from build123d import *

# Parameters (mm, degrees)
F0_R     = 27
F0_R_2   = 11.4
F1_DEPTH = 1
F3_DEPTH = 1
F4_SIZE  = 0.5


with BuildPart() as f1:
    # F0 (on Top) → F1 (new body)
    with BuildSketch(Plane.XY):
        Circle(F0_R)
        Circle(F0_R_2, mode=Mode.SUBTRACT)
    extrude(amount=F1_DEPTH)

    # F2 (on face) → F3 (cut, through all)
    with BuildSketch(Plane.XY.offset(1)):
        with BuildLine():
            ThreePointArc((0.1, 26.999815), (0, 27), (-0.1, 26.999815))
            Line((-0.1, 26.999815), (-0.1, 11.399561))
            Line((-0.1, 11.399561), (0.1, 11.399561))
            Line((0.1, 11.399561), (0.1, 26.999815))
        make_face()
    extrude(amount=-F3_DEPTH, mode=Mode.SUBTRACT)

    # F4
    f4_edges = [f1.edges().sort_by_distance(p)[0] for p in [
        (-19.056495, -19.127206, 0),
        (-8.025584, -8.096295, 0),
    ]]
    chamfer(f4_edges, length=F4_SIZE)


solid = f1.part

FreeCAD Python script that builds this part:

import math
import FreeCAD as App
import Part
import Sketcher

V = App.Vector
Q = App.Units.Quantity


def edges_at(feature, points):
    """Names of the edges that pass closest to the given points."""
    edges = feature.Shape.Edges
    near = lambda p: min(range(len(edges)), key=lambda i: edges[i].distToShape(Part.Vertex(*p))[0])
    return sorted({f"Edge{near(p) + 1}" for p in points})

doc = App.newDocument("Part")
body = doc.addObject("PartDesign::Body", "Body")

# Sketch on XY plane
sketch1 = body.newObject("Sketcher::SketchObject", "Sketch")
sketch1.AttachmentSupport = (doc.getObject("XY_Plane"), [""])
sketch1.MapMode = "FlatFace"
sketch1.addGeometry([
    Part.Circle(V(0, 0, 0), V(0, 0, 1), 27),
    Part.Circle(V(0, 0, 0), V(0, 0, 1), 11),
], False)
sketch1.addConstraint([
    Sketcher.Constraint("Coincident", 0, 3, -1, 1),
    Sketcher.Constraint("Coincident", 1, 3, -1, 1),
    Sketcher.Constraint("Diameter", 0, Q("54 mm")),
    Sketcher.Constraint("Diameter", 1, Q("22.8 mm")),
])
pad1 = body.newObject("PartDesign::Pad", "Pad")
pad1.Profile = sketch1
pad1.Length = 1

# Sketch on XY plane
sketch2 = body.newObject("Sketcher::SketchObject", "Sketch001")
sketch2.AttachmentSupport = (doc.getObject("XY_Plane"), [""])
sketch2.MapMode = "FlatFace"
sketch2.AttachmentOffset = App.Placement(V(0, 0, 1), App.Rotation())
sketch2.addGeometry([
    Part.ArcOfCircle(Part.Circle(V(0, -0.03, 0), V(0, 0, 1), 27.03), math.radians(89.79), math.radians(90.21)),
    Part.LineSegment(V(-0.1, 27, 0), V(-0.1, 11.4, 0)),
    Part.LineSegment(V(-0.1, 11.4, 0), V(0.1, 11.4, 0)),
    Part.LineSegment(V(0.1, 11.4, 0), V(0.1, 27, 0)),
], False)
sketch2.addConstraint([
    Sketcher.Constraint("Coincident", 0, 2, 1, 1),
    Sketcher.Constraint("Coincident", 1, 2, 2, 1),
    Sketcher.Constraint("Coincident", 2, 2, 3, 1),
    Sketcher.Constraint("Coincident", 3, 2, 0, 1),
    Sketcher.Constraint("Vertical", 1),
    Sketcher.Constraint("Horizontal", 2),
    Sketcher.Constraint("Vertical", 3),
    Sketcher.Constraint("Symmetric", 0, 2, 3, 2, -2),
    Sketcher.Constraint("DistanceX", 2, 1, 2, 2, Q("0.2 mm")),
    Sketcher.Constraint("Radius", 0, Q("27.02712 mm")),
    Sketcher.Constraint("DistanceY", 1, 2, 1, 1, Q("15.600254 mm")),
    Sketcher.Constraint("DistanceY", 0, 3, -1, 1, Q("0.02712 mm")),
])
pocket1 = body.newObject("PartDesign::Pocket", "Pocket")
pocket1.Profile = sketch2
pocket1.Type = "ThroughAll"
doc.recompute()

chamfer = body.newObject("PartDesign::Chamfer", "Chamfer")
chamfer.Base = (pocket1, edges_at(pocket1, [(-19.056, -19.127, 0), (-8.026, -8.096, 0)]))
chamfer.Size = 0.5

doc.recompute()
